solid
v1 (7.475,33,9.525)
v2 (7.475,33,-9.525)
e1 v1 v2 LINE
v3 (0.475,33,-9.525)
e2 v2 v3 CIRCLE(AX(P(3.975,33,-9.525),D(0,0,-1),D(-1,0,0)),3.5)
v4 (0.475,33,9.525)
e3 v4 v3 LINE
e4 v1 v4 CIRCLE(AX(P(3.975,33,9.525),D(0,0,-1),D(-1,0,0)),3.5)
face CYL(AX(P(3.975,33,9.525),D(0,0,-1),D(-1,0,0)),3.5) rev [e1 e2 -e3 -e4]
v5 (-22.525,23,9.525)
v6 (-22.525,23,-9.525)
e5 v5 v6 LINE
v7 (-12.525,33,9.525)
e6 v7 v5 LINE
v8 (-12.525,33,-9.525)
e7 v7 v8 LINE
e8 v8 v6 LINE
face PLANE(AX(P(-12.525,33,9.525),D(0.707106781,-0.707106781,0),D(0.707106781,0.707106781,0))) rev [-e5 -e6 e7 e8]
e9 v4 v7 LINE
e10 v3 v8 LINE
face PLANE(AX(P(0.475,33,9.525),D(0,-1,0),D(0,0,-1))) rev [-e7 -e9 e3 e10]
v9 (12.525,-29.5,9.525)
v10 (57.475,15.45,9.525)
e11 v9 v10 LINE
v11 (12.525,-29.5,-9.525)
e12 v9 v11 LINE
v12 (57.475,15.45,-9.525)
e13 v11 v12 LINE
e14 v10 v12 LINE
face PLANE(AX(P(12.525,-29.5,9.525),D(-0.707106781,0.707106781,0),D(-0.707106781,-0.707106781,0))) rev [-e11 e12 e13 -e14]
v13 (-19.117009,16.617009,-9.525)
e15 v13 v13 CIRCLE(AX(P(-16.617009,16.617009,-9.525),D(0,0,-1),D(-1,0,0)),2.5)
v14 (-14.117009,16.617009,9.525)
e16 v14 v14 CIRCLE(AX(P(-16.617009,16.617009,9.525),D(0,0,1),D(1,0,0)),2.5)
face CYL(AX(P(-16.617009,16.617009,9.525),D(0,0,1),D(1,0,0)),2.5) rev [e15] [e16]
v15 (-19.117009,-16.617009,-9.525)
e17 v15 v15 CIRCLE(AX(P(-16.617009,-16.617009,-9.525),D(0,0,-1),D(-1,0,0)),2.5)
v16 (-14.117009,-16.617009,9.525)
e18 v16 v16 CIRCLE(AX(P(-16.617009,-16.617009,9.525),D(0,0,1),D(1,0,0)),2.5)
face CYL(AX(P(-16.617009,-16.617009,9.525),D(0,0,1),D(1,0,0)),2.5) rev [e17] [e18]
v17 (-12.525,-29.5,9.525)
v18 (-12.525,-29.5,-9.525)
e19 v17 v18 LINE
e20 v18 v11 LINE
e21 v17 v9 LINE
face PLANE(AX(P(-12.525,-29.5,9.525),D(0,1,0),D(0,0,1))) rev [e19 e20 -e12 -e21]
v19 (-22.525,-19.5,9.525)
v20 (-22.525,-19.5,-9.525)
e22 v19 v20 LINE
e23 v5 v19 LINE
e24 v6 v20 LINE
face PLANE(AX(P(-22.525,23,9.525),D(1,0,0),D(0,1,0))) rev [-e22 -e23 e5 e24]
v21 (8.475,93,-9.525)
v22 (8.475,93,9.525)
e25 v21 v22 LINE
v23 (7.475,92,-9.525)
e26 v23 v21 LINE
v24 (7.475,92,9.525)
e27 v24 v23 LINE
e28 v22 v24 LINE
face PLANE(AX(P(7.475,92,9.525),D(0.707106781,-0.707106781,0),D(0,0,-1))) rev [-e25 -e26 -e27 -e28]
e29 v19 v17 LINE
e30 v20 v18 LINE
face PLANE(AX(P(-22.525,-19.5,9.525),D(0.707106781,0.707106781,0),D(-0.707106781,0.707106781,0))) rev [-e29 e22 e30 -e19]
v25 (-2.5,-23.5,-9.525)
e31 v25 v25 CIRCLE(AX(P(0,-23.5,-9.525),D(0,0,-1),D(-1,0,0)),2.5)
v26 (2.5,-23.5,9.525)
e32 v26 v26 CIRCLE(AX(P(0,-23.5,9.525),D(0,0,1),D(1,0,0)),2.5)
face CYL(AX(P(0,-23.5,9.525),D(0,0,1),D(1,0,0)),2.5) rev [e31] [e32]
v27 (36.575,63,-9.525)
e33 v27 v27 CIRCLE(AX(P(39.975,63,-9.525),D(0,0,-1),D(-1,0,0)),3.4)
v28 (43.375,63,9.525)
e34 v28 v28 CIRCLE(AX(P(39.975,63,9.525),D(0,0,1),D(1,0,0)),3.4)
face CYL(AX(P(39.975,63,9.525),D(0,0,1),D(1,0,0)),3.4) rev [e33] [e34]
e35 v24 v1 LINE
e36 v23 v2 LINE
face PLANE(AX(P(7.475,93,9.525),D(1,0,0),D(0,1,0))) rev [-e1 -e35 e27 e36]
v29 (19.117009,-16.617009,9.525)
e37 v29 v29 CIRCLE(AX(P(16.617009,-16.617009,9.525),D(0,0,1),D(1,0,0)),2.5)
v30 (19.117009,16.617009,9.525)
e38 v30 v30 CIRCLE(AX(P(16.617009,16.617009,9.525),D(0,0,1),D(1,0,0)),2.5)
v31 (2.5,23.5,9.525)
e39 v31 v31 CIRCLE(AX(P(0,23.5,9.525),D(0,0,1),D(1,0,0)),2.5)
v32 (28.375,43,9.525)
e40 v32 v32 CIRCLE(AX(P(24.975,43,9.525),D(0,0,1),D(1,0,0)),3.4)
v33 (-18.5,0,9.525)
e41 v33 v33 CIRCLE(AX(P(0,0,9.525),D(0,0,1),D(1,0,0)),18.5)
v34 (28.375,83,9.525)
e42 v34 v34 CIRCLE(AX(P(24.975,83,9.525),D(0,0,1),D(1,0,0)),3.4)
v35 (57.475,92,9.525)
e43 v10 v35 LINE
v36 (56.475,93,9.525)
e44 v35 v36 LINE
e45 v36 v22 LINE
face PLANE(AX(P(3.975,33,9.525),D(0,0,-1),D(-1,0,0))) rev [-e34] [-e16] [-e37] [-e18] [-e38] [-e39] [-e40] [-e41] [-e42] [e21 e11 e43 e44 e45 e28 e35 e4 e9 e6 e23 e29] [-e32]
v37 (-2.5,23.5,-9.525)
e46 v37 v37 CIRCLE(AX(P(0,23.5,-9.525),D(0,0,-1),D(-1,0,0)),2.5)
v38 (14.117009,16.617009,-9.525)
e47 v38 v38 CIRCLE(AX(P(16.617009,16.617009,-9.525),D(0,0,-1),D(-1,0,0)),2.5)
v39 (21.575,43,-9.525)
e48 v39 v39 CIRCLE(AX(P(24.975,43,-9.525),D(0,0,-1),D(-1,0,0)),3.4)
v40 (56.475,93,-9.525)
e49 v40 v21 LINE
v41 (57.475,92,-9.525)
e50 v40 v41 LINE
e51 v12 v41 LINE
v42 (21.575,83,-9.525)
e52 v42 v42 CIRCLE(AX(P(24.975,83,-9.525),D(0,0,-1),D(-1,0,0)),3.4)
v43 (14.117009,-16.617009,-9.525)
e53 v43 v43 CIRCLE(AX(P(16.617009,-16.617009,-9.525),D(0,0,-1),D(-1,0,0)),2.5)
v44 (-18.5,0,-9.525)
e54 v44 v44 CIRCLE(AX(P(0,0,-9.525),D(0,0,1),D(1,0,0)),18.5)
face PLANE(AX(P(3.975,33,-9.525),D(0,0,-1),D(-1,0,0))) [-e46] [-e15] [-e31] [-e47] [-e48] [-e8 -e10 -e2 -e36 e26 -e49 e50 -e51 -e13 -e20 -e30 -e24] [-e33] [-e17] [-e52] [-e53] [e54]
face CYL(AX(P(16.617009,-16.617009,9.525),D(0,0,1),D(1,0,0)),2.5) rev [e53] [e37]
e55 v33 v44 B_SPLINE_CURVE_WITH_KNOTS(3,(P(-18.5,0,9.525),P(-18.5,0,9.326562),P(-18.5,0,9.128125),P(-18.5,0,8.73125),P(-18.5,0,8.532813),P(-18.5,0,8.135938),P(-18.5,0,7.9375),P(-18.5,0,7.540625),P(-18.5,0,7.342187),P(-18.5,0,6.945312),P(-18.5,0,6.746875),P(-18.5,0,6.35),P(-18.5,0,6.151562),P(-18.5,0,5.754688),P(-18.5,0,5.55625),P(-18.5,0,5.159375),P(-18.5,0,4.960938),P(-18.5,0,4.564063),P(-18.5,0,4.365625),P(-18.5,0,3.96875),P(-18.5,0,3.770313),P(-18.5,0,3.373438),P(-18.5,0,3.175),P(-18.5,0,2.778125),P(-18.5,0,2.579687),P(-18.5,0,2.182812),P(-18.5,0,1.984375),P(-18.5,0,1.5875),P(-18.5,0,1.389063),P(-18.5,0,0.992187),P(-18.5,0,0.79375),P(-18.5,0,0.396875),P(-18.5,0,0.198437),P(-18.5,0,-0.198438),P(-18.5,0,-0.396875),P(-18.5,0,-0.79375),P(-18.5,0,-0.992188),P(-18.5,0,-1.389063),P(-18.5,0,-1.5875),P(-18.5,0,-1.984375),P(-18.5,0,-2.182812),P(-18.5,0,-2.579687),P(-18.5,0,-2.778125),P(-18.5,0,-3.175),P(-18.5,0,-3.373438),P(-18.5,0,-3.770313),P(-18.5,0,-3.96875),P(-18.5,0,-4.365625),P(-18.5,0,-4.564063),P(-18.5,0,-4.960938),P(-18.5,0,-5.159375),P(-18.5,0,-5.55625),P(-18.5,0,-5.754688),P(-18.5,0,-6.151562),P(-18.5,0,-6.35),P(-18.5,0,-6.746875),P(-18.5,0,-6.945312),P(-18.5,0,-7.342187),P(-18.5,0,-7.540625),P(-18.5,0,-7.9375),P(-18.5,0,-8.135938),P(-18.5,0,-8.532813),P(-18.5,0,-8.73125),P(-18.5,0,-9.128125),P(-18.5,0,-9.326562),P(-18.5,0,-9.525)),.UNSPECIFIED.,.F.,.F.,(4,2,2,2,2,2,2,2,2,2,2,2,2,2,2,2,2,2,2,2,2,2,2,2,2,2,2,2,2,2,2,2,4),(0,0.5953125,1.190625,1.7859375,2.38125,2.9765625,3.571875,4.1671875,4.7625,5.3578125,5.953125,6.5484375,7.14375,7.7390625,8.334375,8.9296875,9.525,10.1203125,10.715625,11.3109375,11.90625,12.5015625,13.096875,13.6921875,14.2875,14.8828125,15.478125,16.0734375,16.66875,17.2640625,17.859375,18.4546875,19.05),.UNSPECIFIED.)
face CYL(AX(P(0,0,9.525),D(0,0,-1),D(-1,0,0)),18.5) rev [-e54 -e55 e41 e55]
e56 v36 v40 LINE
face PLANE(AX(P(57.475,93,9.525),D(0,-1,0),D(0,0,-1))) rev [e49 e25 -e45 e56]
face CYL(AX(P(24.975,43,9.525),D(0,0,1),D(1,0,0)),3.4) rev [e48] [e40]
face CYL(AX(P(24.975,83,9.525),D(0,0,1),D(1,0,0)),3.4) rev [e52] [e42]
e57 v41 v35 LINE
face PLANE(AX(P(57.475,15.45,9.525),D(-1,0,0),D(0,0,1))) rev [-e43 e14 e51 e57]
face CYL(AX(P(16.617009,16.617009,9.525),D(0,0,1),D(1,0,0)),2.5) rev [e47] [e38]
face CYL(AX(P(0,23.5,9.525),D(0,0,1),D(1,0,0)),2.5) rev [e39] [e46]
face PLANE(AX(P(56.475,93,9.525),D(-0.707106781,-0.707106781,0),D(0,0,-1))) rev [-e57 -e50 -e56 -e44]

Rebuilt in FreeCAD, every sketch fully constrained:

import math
import FreeCAD as App
import Part
import Sketcher
from FreeCAD import Vector
Q = App.Units.Quantity


def edges_at(feature, points):
    """Names of the edges that pass closest to the given points."""
    edges = feature.Shape.Edges
    near = lambda p: min(range(len(edges)), key=lambda i: edges[i].distToShape(Part.Vertex(*p))[0])
    return sorted({f"Edge{near(p) + 1}" for p in points})

doc = App.newDocument("Part")
body = doc.addObject("PartDesign::Body", "Body")

# Sketch on XY plane
sketch1 = body.newObject("Sketcher::SketchObject", "Sketch")
sketch1.AttachmentSupport = (doc.getObject("XY_Plane"), [""])
sketch1.MapMode = "FlatFace"
sketch1.addGeometry(Part.LineSegment(Vector(0.5, 33, 0), Vector(-12.5, 33, 0)), False)
sketch1.addGeometry(Part.LineSegment(Vector(-12.5, 33, 0), Vector(-22.5, 23, 0)), False)
sketch1.addGeometry(Part.LineSegment(Vector(-22.5, 23, 0), Vector(-22.5, -19.5, 0)), False)
sketch1.addGeometry(Part.LineSegment(Vector(-22.5, -19.5, 0), Vector(-12.5, -29.5, 0)), False)
sketch1.addGeometry(Part.LineSegment(Vector(-12.5, -29.5, 0), Vector(12.5, -29.5, 0)), False)
sketch1.addGeometry(Part.LineSegment(Vector(12.5, -29.5, 0), Vector(57.5, 15.4, 0)), False)
sketch1.addGeometry(Part.LineSegment(Vector(57.5, 15.4, 0), Vector(57.5, 93, 0)), False)
sketch1.addGeometry(Part.LineSegment(Vector(57.5, 93, 0), Vector(7.5, 93, 0)), False)
sketch1.addGeometry(Part.LineSegment(Vector(7.5, 93, 0), Vector(7.5, 33, 0)), False)
sketch1.addGeometry(Part.ArcOfCircle(Part.Circle(Vector(4, 33, 0), Vector(0, 0, 1), 3.5), math.radians(180), math.radians(360)), False)
sketch1.addGeometry(Part.Circle(Vector(0, 0, 0), Vector(0, 0, 1), 18.5), False)
sketch1.addConstraint(Sketcher.Constraint("Coincident", 0, 2, 1, 1))
sketch1.addConstraint(Sketcher.Constraint("Coincident", 1, 2, 2, 1))
sketch1.addConstraint(Sketcher.Constraint("Coincident", 2, 2, 3, 1))
sketch1.addConstraint(Sketcher.Constraint("Coincident", 3, 2, 4, 1))
sketch1.addConstraint(Sketcher.Constraint("Coincident", 4, 2, 5, 1))
sketch1.addConstraint(Sketcher.Constraint("Coincident", 5, 2, 6, 1))
sketch1.addConstraint(Sketcher.Constraint("Coincident", 6, 2, 7, 1))
sketch1.addConstraint(Sketcher.Constraint("Coincident", 7, 2, 8, 1))
sketch1.addConstraint(Sketcher.Constraint("Tangent", 8, 2, 9, 2))
sketch1.addConstraint(Sketcher.Constraint("Coincident", 9, 1, 0, 1))
sketch1.addConstraint(Sketcher.Constraint("Horizontal", 0))
sketch1.addConstraint(Sketcher.Constraint("Vertical", 2))
sketch1.addConstraint(Sketcher.Constraint("Horizontal", 4))
sketch1.addConstraint(Sketcher.Constraint("Vertical", 6))
sketch1.addConstraint(Sketcher.Constraint("Horizontal", 7))
sketch1.addConstraint(Sketcher.Constraint("Vertical", 8))
sketch1.addConstraint(Sketcher.Constraint("Coincident", 10, 3, -1, 1))
sketch1.addConstraint(Sketcher.Constraint("Perpendicular", 1, 3))
sketch1.addConstraint(Sketcher.Constraint("Perpendicular", 3, 5))
sketch1.addConstraint(Sketcher.Constraint("Horizontal", 9, 3, 0, 2))
sketch1.addConstraint(Sketcher.Constraint("Vertical", 0, 2, 3, 2))
sketch1.addConstraint(Sketcher.Constraint("Equal", 1, 3))
sketch1.addConstraint(Sketcher.Constraint("Diameter", 10, Q("37 mm")))
sketch1.addConstraint(Sketcher.Constraint("Radius", 9, Q("3.5 mm")))
sketch1.addConstraint(Sketcher.Constraint("DistanceX", 0, 2, 0, 1, Q("13 mm")))
sketch1.addConstraint(Sketcher.Constraint("DistanceX", 7, 2, 7, 1, Q("50 mm")))
sketch1.addConstraint(Sketcher.Constraint("DistanceY", 8, 2, 8, 1, Q("60 mm")))
sketch1.addConstraint(Sketcher.Constraint("DistanceY", 2, 2, 2, 1, Q("42.5 mm")))
sketch1.addConstraint(Sketcher.Constraint("DistanceY", -1, 1, 9, 3, Q("33 mm")))
sketch1.addConstraint(Sketcher.Constraint("DistanceY", -1, 1, 1, 2, Q("23 mm")))
sketch1.addConstraint(Sketcher.Constraint("DistanceX", 4, 1, 4, 2, Q("25.05 mm")))
sketch1.addConstraint(Sketcher.Constraint("DistanceX", -1, 1, 9, 3, Q("3.975 mm")))
pad1 = body.newObject("PartDesign::Pad", "Pad")
pad1.Profile = sketch1
pad1.Length = 19.05
pad1.Midplane = True

# Sketch on XY plane
sketch2 = body.newObject("Sketcher::SketchObject", "Sketch001")
sketch2.AttachmentSupport = (doc.getObject("XY_Plane"), [""])
sketch2.MapMode = "FlatFace"
sketch2.AttachmentOffset = App.Placement(Vector(0, 0, 9.525), App.Rotation())
sketch2.addGeometry(Part.Circle(Vector(25, 43, 0), Vector(0, 0, 1), 3.4), False)
sketch2.addGeometry(Part.Circle(Vector(40, 63, 0), Vector(0, 0, 1), 3.4), False)
sketch2.addGeometry(Part.Circle(Vector(25, 83, 0), Vector(0, 0, 1), 3.4), False)
sketch2.addConstraint(Sketcher.Constraint("Equal", 0, 1))
sketch2.addConstraint(Sketcher.Constraint("Equal", 1, 2))
sketch2.addConstraint(Sketcher.Constraint("Vertical", 0, 3, 2, 3))
sketch2.addConstraint(Sketcher.Constraint("Diameter", 0, Q("6.8 mm")))
sketch2.addConstraint(Sketcher.Constraint("DistanceY", -1, 1, 0, 3, Q("43 mm")))
sketch2.addConstraint(Sketcher.Constraint("DistanceY", -1, 1, 1, 3, Q("63 mm")))
sketch2.addConstraint(Sketcher.Constraint("DistanceY", -1, 1, 2, 3, Q("83 mm")))
sketch2.addConstraint(Sketcher.Constraint("DistanceX", 0, 3, 1, 3, Q("15 mm")))
sketch2.addConstraint(Sketcher.Constraint("DistanceX", -1, 1, 0, 3, Q("24.975 mm")))
doc.recompute()
hole = body.newObject("PartDesign::Hole", "Hole")
hole.Profile = sketch2
hole.ThreadType = "None"
hole.Diameter = 6.8
hole.DepthType = "ThroughAll"

# Sketch on XY plane
sketch3 = body.newObject("Sketcher::SketchObject", "Sketch002")
sketch3.AttachmentSupport = (doc.getObject("XY_Plane"), [""])
sketch3.MapMode = "FlatFace"
sketch3.AttachmentOffset = App.Placement(Vector(0, 0, 9.525), App.Rotation())
sketch3.addGeometry(Part.Circle(Vector(0, 23.5, 0), Vector(0, 0, 1), 2.5), False)
sketch3.addGeometry(Part.Circle(Vector(-16.6, 16.6, 0), Vector(0, 0, 1), 2.5), False)
sketch3.addGeometry(Part.Circle(Vector(16.6, 16.6, 0), Vector(0, 0, 1), 2.5), False)
sketch3.addGeometry(Part.Circle(Vector(16.6, -16.6, 0), Vector(0, 0, 1), 2.5), False)
sketch3.addGeometry(Part.Circle(Vector(0, -23.5, 0), Vector(0, 0, 1), 2.5), False)
sketch3.addGeometry(Part.Circle(Vector(-16.6, -16.6, 0), Vector(0, 0, 1), 2.5), False)
sketch3.addConstraint(Sketcher.Constraint("Equal", 0, 1))
sketch3.addConstraint(Sketcher.Constraint("Equal", 1, 2))
sketch3.addConstraint(Sketcher.Constraint("Equal", 2, 3))
sketch3.addConstraint(Sketcher.Constraint("Equal", 3, 4))
sketch3.addConstraint(Sketcher.Constraint("Equal", 4, 5))
sketch3.addConstraint(Sketcher.Constraint("Symmetric", 1, 3, 3, 3, -1, 1))
sketch3.addConstraint(Sketcher.Constraint("Symmetric", 0, 3, 4, 3, -1, 1))
sketch3.addConstraint(Sketcher.Constraint("Symmetric", 2, 3, 5, 3, -1, 1))
sketch3.addConstraint(Sketcher.Constraint("Symmetric", 1, 3, 2, 3, -2))
sketch3.addConstraint(Sketcher.Constraint("PointOnObject", 0, 3, -2))
sketch3.addConstraint(Sketcher.Constraint("Diameter", 0, Q("5 mm")))
sketch3.addConstraint(Sketcher.Constraint("DistanceY", 4, 3, 0, 3, Q("47 mm")))
sketch3.addConstraint(Sketcher.Constraint("DistanceX", 1, 3, -1, 1, Q("16.617009 mm")))
sketch3.addConstraint(Sketcher.Constraint("DistanceY", -1, 1, 1, 3, Q("16.617009 mm")))
doc.recompute()
hole2 = body.newObject("PartDesign::Hole", "Hole001")
hole2.Profile = sketch3
hole2.ThreadType = "None"
hole2.Diameter = 5
hole2.DepthType = "ThroughAll"
doc.recompute()

chamfer = body.newObject("PartDesign::Chamfer", "Chamfer")
chamfer.Base = (hole2, edges_at(hole2, [(7.475, 93, 0), (57.475, 93, 0)]))
chamfer.Size = 1

doc.recompute()
